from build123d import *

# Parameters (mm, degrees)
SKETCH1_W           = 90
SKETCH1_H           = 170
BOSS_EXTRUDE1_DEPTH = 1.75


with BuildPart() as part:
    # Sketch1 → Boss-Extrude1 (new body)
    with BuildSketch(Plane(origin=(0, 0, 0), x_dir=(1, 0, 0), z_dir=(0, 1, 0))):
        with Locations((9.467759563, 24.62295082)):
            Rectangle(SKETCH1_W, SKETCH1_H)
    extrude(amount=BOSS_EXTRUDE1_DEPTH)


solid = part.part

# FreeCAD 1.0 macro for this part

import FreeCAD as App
import Part
import Sketcher


def add_polygon(sketch, points):
    """Adds a closed chain of lines whose ends are joined by coincident constraints."""
    first, n = sketch.GeometryCount, len(points)
    for a, b in zip(points, points[1:] + points[:1]):
        sketch.addGeometry(Part.LineSegment(App.Vector(*a, 0), App.Vector(*b, 0)), False)
    for i in range(n):
        sketch.addConstraint(Sketcher.Constraint("Coincident", first + i, 2, first + (i + 1) % n, 1))

doc = App.newDocument("Part")
body = doc.addObject("PartDesign::Body", "Body")

sketch1 = body.newObject("Sketcher::SketchObject", "Sketch")
sketch1.AttachmentSupport = (doc.getObject("XZ_Plane"), [""])
sketch1.MapMode = "FlatFace"
add_polygon(sketch1, [(-36, -110), (-36, 60), (54, 60), (54, -110)])
sketch1.addConstraint([
    Sketcher.Constraint("Vertical", 0),
    Sketcher.Constraint("Horizontal", 1),
    Sketcher.Constraint("Vertical", 2),
    Sketcher.Constraint("Horizontal", 3),
    Sketcher.Constraint("DistanceX", 1, 1, 1, 2, 90.0),
    Sketcher.Constraint("DistanceY", 0, 1, 0, 2, 170.0),
    Sketcher.Constraint("DistanceX", 0, 2, -1, 1, 35.53224),
    Sketcher.Constraint("DistanceY", -1, 1, 0, 2, 60.377049),
])
pad1 = body.newObject("PartDesign::Pad", "Pad")
pad1.Profile = sketch1
pad1.Length = 1.75
pad1.Reversed = True

doc.recompute()
